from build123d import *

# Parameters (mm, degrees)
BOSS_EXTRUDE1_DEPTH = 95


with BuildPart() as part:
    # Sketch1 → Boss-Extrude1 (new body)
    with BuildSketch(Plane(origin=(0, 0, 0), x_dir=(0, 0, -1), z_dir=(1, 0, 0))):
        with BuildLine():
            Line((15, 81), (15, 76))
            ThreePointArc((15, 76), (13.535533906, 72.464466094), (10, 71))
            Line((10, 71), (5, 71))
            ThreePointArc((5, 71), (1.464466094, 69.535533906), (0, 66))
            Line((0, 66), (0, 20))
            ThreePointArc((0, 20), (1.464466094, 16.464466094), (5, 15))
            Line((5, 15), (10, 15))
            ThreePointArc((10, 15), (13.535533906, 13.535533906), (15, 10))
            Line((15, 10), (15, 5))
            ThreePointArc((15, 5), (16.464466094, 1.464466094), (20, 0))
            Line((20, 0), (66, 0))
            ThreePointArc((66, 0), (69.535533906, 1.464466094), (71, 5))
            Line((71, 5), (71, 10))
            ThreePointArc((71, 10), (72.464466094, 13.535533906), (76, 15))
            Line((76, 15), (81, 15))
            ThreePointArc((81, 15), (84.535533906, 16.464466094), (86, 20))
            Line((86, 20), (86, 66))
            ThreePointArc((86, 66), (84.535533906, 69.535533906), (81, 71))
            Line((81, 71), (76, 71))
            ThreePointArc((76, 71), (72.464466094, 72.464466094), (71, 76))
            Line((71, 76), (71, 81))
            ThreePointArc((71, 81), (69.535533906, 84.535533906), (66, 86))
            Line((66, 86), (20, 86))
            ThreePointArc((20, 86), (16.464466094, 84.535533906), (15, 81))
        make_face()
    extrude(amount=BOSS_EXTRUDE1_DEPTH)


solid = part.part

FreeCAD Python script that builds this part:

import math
import FreeCAD as App
import Part
import Sketcher

doc = App.newDocument("Part")
params = doc.addObject("Spreadsheet::Sheet", "Params")
for row, (alias, value) in enumerate([
    ("sketch1_radius", "5 mm"),
    ("sketch1_width", "5 mm"),
    ("sketch1_width2", "46 mm"),
    ("pad1_length", "95 mm"),
], start=1):
    params.set(f"A{row}", alias)
    params.set(f"B{row}", "=" + value)
    params.setAlias(f"B{row}", alias)

body = doc.addObject("PartDesign::Body", "Body")

sketch1 = body.newObject("Sketcher::SketchObject", "Sketch")
sketch1.AttachmentSupport = (doc.getObject("YZ_Plane"), [""])
sketch1.MapMode = "FlatFace"
sketch1.addGeometry(Part.LineSegment(App.Vector(81, -15, 0), App.Vector(76, -15, 0)), False)
sketch1.addGeometry(Part.ArcOfCircle(Part.Circle(App.Vector(76, -10, 0), App.Vector(0, 0, 1), 5), math.radians(180), math.radians(270)), False)
sketch1.addGeometry(Part.LineSegment(App.Vector(71, -10, 0), App.Vector(71, -5, 0)), False)
sketch1.addGeometry(Part.ArcOfCircle(Part.Circle(App.Vector(66, -5, 0), App.Vector(0, 0, 1), 5), math.radians(0), math.radians(90)), False)
sketch1.addGeometry(Part.LineSegment(App.Vector(66, 0, 0), App.Vector(20, 0, 0)), False)
sketch1.addGeometry(Part.ArcOfCircle(Part.Circle(App.Vector(20, -5, 0), App.Vector(0, 0, 1), 5), math.radians(90), math.radians(180)), False)
sketch1.addGeometry(Part.LineSegment(App.Vector(15, -5, 0), App.Vector(15, -10, 0)), False)
sketch1.addGeometry(Part.ArcOfCircle(Part.Circle(App.Vector(10, -10, 0), App.Vector(0, 0, 1), 5), math.radians(-90), math.radians(0)), False)
sketch1.addGeometry(Part.LineSegment(App.Vector(10, -15, 0), App.Vector(5, -15, 0)), False)
sketch1.addGeometry(Part.ArcOfCircle(Part.Circle(App.Vector(5, -20, 0), App.Vector(0, 0, 1), 5), math.radians(90), math.radians(180)), False)
sketch1.addGeometry(Part.LineSegment(App.Vector(0, -20, 0), App.Vector(0, -66, 0)), False)
sketch1.addGeometry(Part.ArcOfCircle(Part.Circle(App.Vector(5, -66, 0), App.Vector(0, 0, 1), 5), math.radians(180), math.radians(270)), False)
sketch1.addGeometry(Part.LineSegment(App.Vector(5, -71, 0), App.Vector(10, -71, 0)), False)
sketch1.addGeometry(Part.ArcOfCircle(Part.Circle(App.Vector(10, -76, 0), App.Vector(0, 0, 1), 5), math.radians(0), math.radians(90)), False)
sketch1.addGeometry(Part.LineSegment(App.Vector(15, -76, 0), App.Vector(15, -81, 0)), False)
sketch1.addGeometry(Part.ArcOfCircle(Part.Circle(App.Vector(20, -81, 0), App.Vector(0, 0, 1), 5), math.radians(180), math.radians(270)), False)
sketch1.addGeometry(Part.LineSegment(App.Vector(20, -86, 0), App.Vector(66, -86, 0)), False)
sketch1.addGeometry(Part.ArcOfCircle(Part.Circle(App.Vector(66, -81, 0), App.Vector(0, 0, 1), 5), math.radians(-90), math.radians(0)), False)
sketch1.addGeometry(Part.LineSegment(App.Vector(71, -81, 0), App.Vector(71, -76, 0)), False)
sketch1.addGeometry(Part.ArcOfCircle(Part.Circle(App.Vector(76, -76, 0), App.Vector(0, 0, 1), 5), math.radians(90), math.radians(180)), False)
sketch1.addGeometry(Part.LineSegment(App.Vector(76, -71, 0), App.Vector(81, -71, 0)), False)
sketch1.addGeometry(Part.ArcOfCircle(Part.Circle(App.Vector(81, -66, 0), App.Vector(0, 0, 1), 5), math.radians(-90), math.radians(0)), False)
sketch1.addGeometry(Part.LineSegment(App.Vector(86, -66, 0), App.Vector(86, -20, 0)), False)
sketch1.addGeometry(Part.ArcOfCircle(Part.Circle(App.Vector(81, -20, 0), App.Vector(0, 0, 1), 5), math.radians(0), math.radians(90)), False)
sketch1.addConstraint(Sketcher.Constraint("Tangent", 0, 2, 1, 2))
sketch1.addConstraint(Sketcher.Constraint("Tangent", 1, 1, 2, 1))
sketch1.addConstraint(Sketcher.Constraint("Tangent", 2, 2, 3, 1))
sketch1.addConstraint(Sketcher.Constraint("Tangent", 3, 2, 4, 1))
sketch1.addConstraint(Sketcher.Constraint("Tangent", 4, 2, 5, 1))
sketch1.addConstraint(Sketcher.Constraint("Tangent", 5, 2, 6, 1))
sketch1.addConstraint(Sketcher.Constraint("Tangent", 6, 2, 7, 2))
sketch1.addConstraint(Sketcher.Constraint("Tangent", 7, 1, 8, 1))
sketch1.addConstraint(Sketcher.Constraint("Tangent", 8, 2, 9, 1))
sketch1.addConstraint(Sketcher.Constraint("Tangent", 9, 2, 10, 1))
sketch1.addConstraint(Sketcher.Constraint("Tangent", 10, 2, 11, 1))
sketch1.addConstraint(Sketcher.Constraint("Tangent", 11, 2, 12, 1))
sketch1.addConstraint(Sketcher.Constraint("Tangent", 12, 2, 13, 2))
sketch1.addConstraint(Sketcher.Constraint("Tangent", 13, 1, 14, 1))
sketch1.addConstraint(Sketcher.Constraint("Tangent", 14, 2, 15, 1))
sketch1.addConstraint(Sketcher.Constraint("Tangent", 15, 2, 16, 1))
sketch1.addConstraint(Sketcher.Constraint("Tangent", 16, 2, 17, 1))
sketch1.addConstraint(Sketcher.Constraint("Tangent", 17, 2, 18, 1))
sketch1.addConstraint(Sketcher.Constraint("Tangent", 18, 2, 19, 2))
sketch1.addConstraint(Sketcher.Constraint("Tangent", 19, 1, 20, 1))
sketch1.addConstraint(Sketcher.Constraint("Tangent", 20, 2, 21, 1))
sketch1.addConstraint(Sketcher.Constraint("Tangent", 21, 2, 22, 1))
sketch1.addConstraint(Sketcher.Constraint("Tangent", 22, 2, 23, 1))
sketch1.addConstraint(Sketcher.Constraint("Tangent", 23, 2, 0, 1))
sketch1.addConstraint(Sketcher.Constraint("Horizontal", 0))
sketch1.addConstraint(Sketcher.Constraint("Vertical", 2))
sketch1.addConstraint(Sketcher.Constraint("Horizontal", 4))
sketch1.addConstraint(Sketcher.Constraint("Vertical", 6))
sketch1.addConstraint(Sketcher.Constraint("Horizontal", 8))
sketch1.addConstraint(Sketcher.Constraint("Vertical", 10))
sketch1.addConstraint(Sketcher.Constraint("Horizontal", 12))
sketch1.addConstraint(Sketcher.Constraint("Vertical", 14))
sketch1.addConstraint(Sketcher.Constraint("Horizontal", 16))
sketch1.addConstraint(Sketcher.Constraint("Vertical", 18))
sketch1.addConstraint(Sketcher.Constraint("Horizontal", 20))
sketch1.addConstraint(Sketcher.Constraint("Vertical", 22))
sketch1.addConstraint(Sketcher.Constraint("Equal", 1, 3))
sketch1.addConstraint(Sketcher.Constraint("Equal", 3, 5))
sketch1.addConstraint(Sketcher.Constraint("Equal", 5, 7))
sketch1.addConstraint(Sketcher.Constraint("Equal", 7, 9))
sketch1.addConstraint(Sketcher.Constraint("Equal", 9, 11))
sketch1.addConstraint(Sketcher.Constraint("Equal", 11, 13))
sketch1.addConstraint(Sketcher.Constraint("Equal", 13, 15))
sketch1.addConstraint(Sketcher.Constraint("Equal", 15, 17))
sketch1.addConstraint(Sketcher.Constraint("Equal", 17, 19))
sketch1.addConstraint(Sketcher.Constraint("Equal", 19, 21))
sketch1.addConstraint(Sketcher.Constraint("Equal", 21, 23))
sketch1.addConstraint(Sketcher.Constraint("PointOnObject", 3, 2, -1))
sketch1.addConstraint(Sketcher.Constraint("PointOnObject", 9, 2, -2))
sketch1.addConstraint(Sketcher.Constraint("Horizontal", 1, 3, 7, 3))
sketch1.addConstraint(Sketcher.Constraint("Horizontal", 13, 3, 19, 3))
sketch1.addConstraint(Sketcher.Constraint("Vertical", 7, 3, 13, 3))
sketch1.addConstraint(Sketcher.Constraint("Vertical", 3, 3, 17, 3))
sketch1.addConstraint(Sketcher.Constraint("Equal", 0, 8))
sketch1.addConstraint(Sketcher.Constraint("Equal", 20, 2))
sketch1.addConstraint(Sketcher.Constraint("Equal", 16, 10))
sketch1.addConstraint(Sketcher.Constraint("Equal", 6, 14))
sketch1.addConstraint(Sketcher.Constraint("Radius", 1, 5.0))
sketch1.addConstraint(Sketcher.Constraint("DistanceX", 0, 2, 0, 1, 5.0))
sketch1.addConstraint(Sketcher.Constraint("DistanceX", 4, 2, 4, 1, 46.0))
sketch1.setExpression("Constraints[57]", "Params.sketch1_radius")
sketch1.setExpression("Constraints[58]", "Params.sketch1_width")
sketch1.setExpression("Constraints[59]", "Params.sketch1_width2")
pad1 = body.newObject("PartDesign::Pad", "Pad")
pad1.Profile = sketch1
pad1.setExpression("Length", "Params.pad1_length")

doc.recompute()
